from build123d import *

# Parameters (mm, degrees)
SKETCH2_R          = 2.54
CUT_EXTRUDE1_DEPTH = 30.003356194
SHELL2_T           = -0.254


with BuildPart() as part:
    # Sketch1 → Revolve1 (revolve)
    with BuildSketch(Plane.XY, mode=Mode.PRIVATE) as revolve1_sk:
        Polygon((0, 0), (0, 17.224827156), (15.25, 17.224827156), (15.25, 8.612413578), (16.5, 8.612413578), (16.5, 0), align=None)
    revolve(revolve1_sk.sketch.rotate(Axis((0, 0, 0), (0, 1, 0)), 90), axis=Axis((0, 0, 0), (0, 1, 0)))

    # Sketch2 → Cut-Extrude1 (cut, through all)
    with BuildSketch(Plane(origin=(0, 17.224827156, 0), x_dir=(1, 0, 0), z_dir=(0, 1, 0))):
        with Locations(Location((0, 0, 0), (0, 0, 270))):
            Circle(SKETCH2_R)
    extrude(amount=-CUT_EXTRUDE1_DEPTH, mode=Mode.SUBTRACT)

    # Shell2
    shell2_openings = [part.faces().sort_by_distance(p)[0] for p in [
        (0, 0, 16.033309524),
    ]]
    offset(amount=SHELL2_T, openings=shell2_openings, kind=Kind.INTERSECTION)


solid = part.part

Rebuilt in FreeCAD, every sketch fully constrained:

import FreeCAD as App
import Part
import Sketcher
from FreeCAD import Vector
Q = App.Units.Quantity


def faces_at(feature, points):
    """Names of the faces that lie closest to the given points."""
    faces = feature.Shape.Faces
    near = lambda p: min(range(len(faces)), key=lambda i: faces[i].distToShape(Part.Vertex(*p))[0])
    return sorted({f"Face{near(p) + 1}" for p in points})

doc = App.newDocument("Part")
body = doc.addObject("PartDesign::Body", "Body")

# Sketch on XY plane
sketch1 = body.newObject("Sketcher::SketchObject", "Sketch")
sketch1.AttachmentSupport = (doc.getObject("XY_Plane"), [""])
sketch1.MapMode = "FlatFace"
sketch1.addGeometry(Part.LineSegment(Vector(0, 17.2, 0), Vector(0, 0, 0)), False)
sketch1.addGeometry(Part.LineSegment(Vector(0, 0, 0), Vector(16.5, 0, 0)), False)
sketch1.addGeometry(Part.LineSegment(Vector(16.5, 0, 0), Vector(16.5, 8.6, 0)), False)
sketch1.addGeometry(Part.LineSegment(Vector(16.5, 8.6, 0), Vector(15.2, 8.6, 0)), False)
sketch1.addGeometry(Part.LineSegment(Vector(15.2, 8.6, 0), Vector(15.2, 17.2, 0)), False)
sketch1.addGeometry(Part.LineSegment(Vector(15.2, 17.2, 0), Vector(0, 17.2, 0)), False)
sketch1.addConstraint(Sketcher.Constraint("Coincident", 0, 2, 1, 1))
sketch1.addConstraint(Sketcher.Constraint("Coincident", 1, 2, 2, 1))
sketch1.addConstraint(Sketcher.Constraint("Coincident", 2, 2, 3, 1))
sketch1.addConstraint(Sketcher.Constraint("Coincident", 3, 2, 4, 1))
sketch1.addConstraint(Sketcher.Constraint("Coincident", 4, 2, 5, 1))
sketch1.addConstraint(Sketcher.Constraint("Coincident", 5, 2, 0, 1))
sketch1.addConstraint(Sketcher.Constraint("Vertical", 0))
sketch1.addConstraint(Sketcher.Constraint("Horizontal", 1))
sketch1.addConstraint(Sketcher.Constraint("Vertical", 2))
sketch1.addConstraint(Sketcher.Constraint("Horizontal", 3))
sketch1.addConstraint(Sketcher.Constraint("Vertical", 4))
sketch1.addConstraint(Sketcher.Constraint("Horizontal", 5))
sketch1.addConstraint(Sketcher.Constraint("Coincident", 0, 2, -1, 1))
sketch1.addConstraint(Sketcher.Constraint("Equal", 2, 4))
sketch1.addConstraint(Sketcher.Constraint("DistanceX", 1, 1, 1, 2, 16.5))
sketch1.addConstraint(Sketcher.Constraint("DistanceX", 3, 2, 3, 1, 1.25))
sketch1.addConstraint(Sketcher.Constraint("DistanceY", 0, 2, 0, 1, 17.224827))
revolution = body.newObject("PartDesign::Revolution", "Revolution")
revolution.Profile = sketch1
revolution.ReferenceAxis = (sketch1, ["V_Axis"])
revolution.Angle = 360

# Sketch on XZ plane
sketch2 = body.newObject("Sketcher::SketchObject", "Sketch001")
sketch2.AttachmentSupport = (doc.getObject("XZ_Plane"), [""])
sketch2.MapMode = "FlatFace"
sketch2.AttachmentOffset = App.Placement(Vector(0, 0, -17.224827), App.Rotation())
sketch2.addGeometry(Part.Circle(Vector(0, 0, 0), Vector(0, 0, 1), 2.5), False)
sketch2.addConstraint(Sketcher.Constraint("Coincident", 0, 3, -1, 1))
sketch2.addConstraint(Sketcher.Constraint("Diameter", 0, Q("0.2 in")))
pocket1 = body.newObject("PartDesign::Pocket", "Pocket")
pocket1.Profile = sketch2
pocket1.Type = "ThroughAll"
pocket1.Reversed = True
doc.recompute()

thickness = body.newObject("PartDesign::Thickness", "Thickness")
thickness.Base = (pocket1, faces_at(pocket1, [(6.6, 0, 6.6)]))
thickness.Value = Q("0.01 in")
thickness.Reversed = True
thickness.Join = "Intersection"

doc.recompute()
